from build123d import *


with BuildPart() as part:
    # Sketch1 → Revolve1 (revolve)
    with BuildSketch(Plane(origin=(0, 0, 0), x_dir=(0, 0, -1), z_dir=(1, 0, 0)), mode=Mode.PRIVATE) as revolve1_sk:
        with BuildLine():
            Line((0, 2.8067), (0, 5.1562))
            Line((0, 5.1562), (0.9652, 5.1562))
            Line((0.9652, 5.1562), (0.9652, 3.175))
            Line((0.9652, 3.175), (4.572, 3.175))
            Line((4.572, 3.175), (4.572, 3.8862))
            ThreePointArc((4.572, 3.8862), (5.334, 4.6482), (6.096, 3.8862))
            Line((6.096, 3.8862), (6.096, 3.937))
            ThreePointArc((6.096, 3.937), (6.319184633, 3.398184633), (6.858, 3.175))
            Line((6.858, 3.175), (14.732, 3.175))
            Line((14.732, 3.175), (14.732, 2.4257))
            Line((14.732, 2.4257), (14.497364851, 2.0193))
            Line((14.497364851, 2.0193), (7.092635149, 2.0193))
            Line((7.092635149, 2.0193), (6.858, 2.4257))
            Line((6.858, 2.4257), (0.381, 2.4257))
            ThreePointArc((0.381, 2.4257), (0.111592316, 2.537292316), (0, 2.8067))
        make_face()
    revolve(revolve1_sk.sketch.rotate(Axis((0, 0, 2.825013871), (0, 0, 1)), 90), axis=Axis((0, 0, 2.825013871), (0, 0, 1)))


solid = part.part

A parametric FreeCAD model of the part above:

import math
import FreeCAD as App
import Part
import Sketcher

V = App.Vector
Q = App.Units.Quantity

doc = App.newDocument("Part")
body = doc.addObject("PartDesign::Body", "Body")

# Sketch on YZ plane
sketch1 = body.newObject("Sketcher::SketchObject", "Sketch")
sketch1.AttachmentSupport = (doc.getObject("YZ_Plane"), [""])
sketch1.MapMode = "FlatFace"
sketch1.addGeometry([
    Part.LineSegment(V(5.16, 0, 0), V(2.81, 0, 0)),  # 0
    Part.ArcOfCircle(Part.Circle(V(2.81, -0.38, 0), V(0, 0, 1), 0.38), math.radians(90), math.radians(180)),  # 1
    Part.LineSegment(V(2.43, -0.38, 0), V(2.43, -6.86, 0)),  # 2
    Part.LineSegment(V(2.43, -6.86, 0), V(2.02, -7.09, 0)),  # 3
    Part.LineSegment(V(2.02, -7.09, 0), V(2.02, -14.5, 0)),  # 4
    Part.LineSegment(V(2.02, -14.5, 0), V(2.43, -14.73, 0)),  # 5
    Part.LineSegment(V(2.43, -14.73, 0), V(3.17, -14.73, 0)),  # 6
    Part.LineSegment(V(3.17, -14.73, 0), V(3.17, -6.86, 0)),  # 7
    Part.ArcOfCircle(Part.Circle(V(3.94, -6.86, 0), V(0, 0, 1), 0.76), math.radians(90), math.radians(180)),  # 8
    Part.LineSegment(V(3.94, -6.1, 0), V(3.89, -6.1, 0)),  # 9
    Part.ArcOfCircle(Part.Circle(V(3.89, -5.33, 0), V(0, 0, 1), 0.76), math.radians(-90), math.radians(90)),  # 10
    Part.LineSegment(V(3.89, -4.57, 0), V(3.17, -4.57, 0)),  # 11
    Part.LineSegment(V(3.17, -4.57, 0), V(3.17, -0.97, 0)),  # 12
    Part.LineSegment(V(3.17, -0.97, 0), V(5.16, -0.97, 0)),  # 13
    Part.LineSegment(V(5.16, -0.97, 0), V(5.16, 0, 0)),  # 14
], False)
sketch1.addConstraint([
    Sketcher.Constraint("Tangent", 0, 2, 1, 1),
    Sketcher.Constraint("Tangent", 1, 2, 2, 1),
    Sketcher.Constraint("Coincident", 2, 2, 3, 1),
    Sketcher.Constraint("Coincident", 3, 2, 4, 1),
    Sketcher.Constraint("Coincident", 4, 2, 5, 1),
    Sketcher.Constraint("Coincident", 5, 2, 6, 1),
    Sketcher.Constraint("Coincident", 6, 2, 7, 1),
    Sketcher.Constraint("Tangent", 7, 2, 8, 2),
    Sketcher.Constraint("Tangent", 8, 1, 9, 1),
    Sketcher.Constraint("Tangent", 9, 2, 10, 1),
    Sketcher.Constraint("Tangent", 10, 2, 11, 1),
    Sketcher.Constraint("Coincident", 11, 2, 12, 1),
    Sketcher.Constraint("Coincident", 12, 2, 13, 1),
    Sketcher.Constraint("Coincident", 13, 2, 14, 1),
    Sketcher.Constraint("Coincident", 14, 2, 0, 1),
    Sketcher.Constraint("Horizontal", 0),
    Sketcher.Constraint("Vertical", 2),
    Sketcher.Constraint("Vertical", 4),
    Sketcher.Constraint("Horizontal", 6),
    Sketcher.Constraint("Vertical", 7),
    Sketcher.Constraint("Horizontal", 9),
    Sketcher.Constraint("Horizontal", 11),
    Sketcher.Constraint("Vertical", 12),
    Sketcher.Constraint("Horizontal", 13),
    Sketcher.Constraint("Vertical", 14),
    Sketcher.Constraint("Equal", 8, 10),
    Sketcher.Constraint("PointOnObject", 0, 2, -1),
    Sketcher.Constraint("Horizontal", 8, 3, 2, 2),
    Sketcher.Constraint("Vertical", 2, 2, 5, 2),
    Sketcher.Constraint("Vertical", 7, 2, 11, 2),
    Sketcher.Constraint("Equal", 3, 5),
    Sketcher.Constraint("Radius", 8, Q("0.03 in")),
    Sketcher.Constraint("Angle", 3, Q("-150 deg")),
    Sketcher.Constraint("Radius", 1, Q("0.015 in")),
    Sketcher.Constraint("DistanceY", 7, 1, 7, 2, Q("0.31 in")),
    Sketcher.Constraint("DistanceX", 9, 2, 9, 1, Q("0.002 in")),
    Sketcher.Constraint("DistanceX", 13, 1, 13, 2, Q("0.078 in")),
    Sketcher.Constraint("DistanceY", 2, 2, 2, 1, Q("0.255 in")),
    Sketcher.Constraint("DistanceY", 12, 1, 12, 2, Q("0.142 in")),
    Sketcher.Constraint("DistanceX", 0, 2, 0, 1, Q("0.0925 in")),
    Sketcher.Constraint("DistanceX", -1, 1, 8, 3, Q("0.155 in")),
    Sketcher.Constraint("DistanceX", 3, 2, 2, 2, Q("0.016 in")),
])
revolution = body.newObject("PartDesign::Revolution", "Revolution")
revolution.Profile = sketch1
revolution.ReferenceAxis = (sketch1, ["V_Axis"])
revolution.Angle = 360

doc.recompute()
